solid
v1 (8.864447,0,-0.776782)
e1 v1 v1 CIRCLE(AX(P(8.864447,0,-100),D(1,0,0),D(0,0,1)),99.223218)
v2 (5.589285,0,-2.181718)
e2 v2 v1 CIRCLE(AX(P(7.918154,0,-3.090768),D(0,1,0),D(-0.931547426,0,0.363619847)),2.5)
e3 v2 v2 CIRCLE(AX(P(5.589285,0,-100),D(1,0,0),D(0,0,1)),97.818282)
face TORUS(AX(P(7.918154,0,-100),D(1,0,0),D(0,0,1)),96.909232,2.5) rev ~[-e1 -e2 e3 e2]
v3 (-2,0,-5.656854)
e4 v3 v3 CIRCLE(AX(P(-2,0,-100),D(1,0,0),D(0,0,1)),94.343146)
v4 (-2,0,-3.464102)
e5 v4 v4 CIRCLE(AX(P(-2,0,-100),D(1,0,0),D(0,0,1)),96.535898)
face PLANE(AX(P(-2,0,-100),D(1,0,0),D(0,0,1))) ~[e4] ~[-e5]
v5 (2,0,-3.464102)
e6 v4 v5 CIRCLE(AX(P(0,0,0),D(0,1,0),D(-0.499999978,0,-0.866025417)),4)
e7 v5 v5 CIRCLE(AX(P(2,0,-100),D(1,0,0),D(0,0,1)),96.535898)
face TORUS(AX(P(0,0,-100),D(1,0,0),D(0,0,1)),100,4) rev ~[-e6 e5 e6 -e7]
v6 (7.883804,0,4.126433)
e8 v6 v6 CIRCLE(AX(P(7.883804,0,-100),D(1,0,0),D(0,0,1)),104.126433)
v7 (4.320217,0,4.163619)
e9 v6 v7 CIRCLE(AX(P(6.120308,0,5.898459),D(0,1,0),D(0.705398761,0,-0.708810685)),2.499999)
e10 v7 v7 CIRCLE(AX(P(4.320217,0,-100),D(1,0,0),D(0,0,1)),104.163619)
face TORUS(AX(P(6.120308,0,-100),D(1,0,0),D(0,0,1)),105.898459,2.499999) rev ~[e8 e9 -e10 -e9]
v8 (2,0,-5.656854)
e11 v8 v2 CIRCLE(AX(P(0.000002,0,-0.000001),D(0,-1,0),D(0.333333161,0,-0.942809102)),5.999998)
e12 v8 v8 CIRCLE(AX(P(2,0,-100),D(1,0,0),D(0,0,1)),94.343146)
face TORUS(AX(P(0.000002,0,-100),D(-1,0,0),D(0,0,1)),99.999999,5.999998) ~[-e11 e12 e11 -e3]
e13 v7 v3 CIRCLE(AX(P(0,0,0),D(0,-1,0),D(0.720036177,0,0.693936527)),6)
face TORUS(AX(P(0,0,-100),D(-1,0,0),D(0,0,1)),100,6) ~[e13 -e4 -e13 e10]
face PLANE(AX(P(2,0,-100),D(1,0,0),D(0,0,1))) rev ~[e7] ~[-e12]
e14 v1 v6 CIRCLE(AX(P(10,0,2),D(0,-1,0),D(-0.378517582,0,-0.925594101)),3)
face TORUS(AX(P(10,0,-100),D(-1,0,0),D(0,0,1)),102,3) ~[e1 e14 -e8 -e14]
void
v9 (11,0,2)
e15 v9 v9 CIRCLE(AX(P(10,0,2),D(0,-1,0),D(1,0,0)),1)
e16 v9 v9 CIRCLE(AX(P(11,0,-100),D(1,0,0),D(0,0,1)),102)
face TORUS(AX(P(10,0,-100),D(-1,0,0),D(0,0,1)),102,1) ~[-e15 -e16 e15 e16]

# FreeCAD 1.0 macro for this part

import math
import FreeCAD as App
import Part
import Sketcher

V = App.Vector
Q = App.Units.Quantity

doc = App.newDocument("Part")
body = doc.addObject("PartDesign::Body", "Body")

# Sketch on XZ plane
sketch1 = doc.addObject("Sketcher::SketchObject", "Sketch")
body.addObject(sketch1)
sketch1.AttachmentSupport = (doc.XZ_Plane, [""])
sketch1.MapMode = "FlatFace"
sketch1.addGeometry([
    Part.ArcOfCircle(Part.Circle(V(0, 0, 0), V(0, 0, 1), 4), math.radians(-60.000001), math.radians(240.000001)),  # 0
    Part.LineSegment(V(2, -3.464102, 0), V(2, -5.656854, 0)),  # 1
    Part.ArcOfCircle(Part.Circle(V(0.000002, -0.000001, 0), V(0, 0, 1), 5.999998), math.radians(-70.52879), math.radians(-21.322653)),  # 2
    Part.ArcOfCircle(Part.Circle(V(7.918154, -3.090768, 0), V(0, 0, 1), 2.5), math.radians(67.758129), math.radians(158.67733)),  # 3
    Part.ArcOfCircle(Part.Circle(V(10, 2, 0), V(0, 0, 1), 3), math.radians(-112.241888), math.radians(134.861753)),  # 4
    Part.ArcOfCircle(Part.Circle(V(6.120308, 5.898459, 0), V(0, 0, 1), 2.499999), math.radians(-136.057487), math.radians(-45.138232)),  # 5
    Part.ArcOfCircle(Part.Circle(V(0, 0, 0), V(0, 0, 1), 6), math.radians(43.942533), math.radians(250.528778)),  # 6
    Part.LineSegment(V(-2, -5.656854, 0), V(-2, -3.464102, 0)),  # 7
    Part.Circle(V(10, 2, 0), V(0, 0, 1), 1),  # 8
], False)
sketch1.addGeometry(Part.LineSegment(V(-2, -100, 0), V(10, -100, 0)), True)  # axis
sketch1.addConstraint([
    Sketcher.Constraint("Coincident", 0, 1, 1, 1),
    Sketcher.Constraint("Coincident", 1, 2, 2, 1),
    Sketcher.Constraint("Tangent", 2, 2, 3, 2),
    Sketcher.Constraint("Tangent", 3, 1, 4, 1),
    Sketcher.Constraint("Tangent", 4, 2, 5, 2),
    Sketcher.Constraint("Tangent", 5, 1, 6, 1),
    Sketcher.Constraint("Coincident", 6, 2, 7, 1),
    Sketcher.Constraint("Coincident", 7, 2, 0, 2),
    Sketcher.Constraint("Vertical", 1),
    Sketcher.Constraint("Vertical", 7),
    Sketcher.Constraint("Horizontal", 9),
    Sketcher.Constraint("Coincident", 0, 3, -1, 1),
    Sketcher.Constraint("Coincident", 2, 3, -1, 1),
    Sketcher.Constraint("Coincident", 6, 3, -1, 1),
    Sketcher.Constraint("Coincident", 8, 3, 4, 3),
    Sketcher.Constraint("Equal", 3, 5),
    Sketcher.Constraint("Equal", 2, 6),
    Sketcher.Constraint("Horizontal", 1, 2, 6, 2),
    Sketcher.Constraint("Vertical", 7, 2, 9, 1),
    Sketcher.Constraint("Vertical", 8, 3, 9, 2),
    Sketcher.Constraint("Diameter", 8, Q("2 mm")),
    Sketcher.Constraint("Radius", 0, Q("4 mm")),
    Sketcher.Constraint("Radius", 4, Q("3 mm")),
    Sketcher.Constraint("Radius", 6, Q("6 mm")),
    Sketcher.Constraint("Radius", 3, Q("2.5 mm")),
    Sketcher.Constraint("DistanceX", 9, 1, 9, 2, Q("12 mm")),
    Sketcher.Constraint("DistanceX", -1, 1, 4, 3, Q("10 mm")),
    Sketcher.Constraint("DistanceY", -1, 1, 4, 3, Q("2 mm")),
    Sketcher.Constraint("DistanceY", 9, 1, -1, 1, Q("100 mm")),
])
revolution = doc.addObject("PartDesign::Revolution", "Revolution")
body.addObject(revolution)
revolution.Profile = sketch1
revolution.ReferenceAxis = (sketch1, ["Axis0"])
revolution.Angle = 360

doc.recompute()
